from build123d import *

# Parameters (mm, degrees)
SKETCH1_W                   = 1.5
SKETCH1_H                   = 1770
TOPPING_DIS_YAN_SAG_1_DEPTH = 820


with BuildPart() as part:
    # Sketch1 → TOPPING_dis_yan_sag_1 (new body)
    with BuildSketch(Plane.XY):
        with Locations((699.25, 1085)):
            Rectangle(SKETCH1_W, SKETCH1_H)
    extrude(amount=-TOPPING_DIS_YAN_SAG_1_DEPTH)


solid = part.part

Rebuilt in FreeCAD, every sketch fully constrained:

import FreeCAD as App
import Part
import Sketcher
from FreeCAD import Vector
Q = App.Units.Quantity


def add_polygon(sketch, points):
    """Adds a closed chain of lines whose ends are joined by coincident constraints."""
    first, n = sketch.GeometryCount, len(points)
    for a, b in zip(points, points[1:] + points[:1]):
        sketch.addGeometry(Part.LineSegment(App.Vector(*a, 0), App.Vector(*b, 0)), False)
    for i in range(n):
        sketch.addConstraint(Sketcher.Constraint("Coincident", first + i, 2, first + (i + 1) % n, 1))

doc = App.newDocument("Part")
body = doc.addObject("PartDesign::Body", "Body")

# Sketch on XY plane
sketch1 = body.newObject("Sketcher::SketchObject", "Sketch")
sketch1.AttachmentSupport = (doc.getObject("XY_Plane"), [""])
sketch1.MapMode = "FlatFace"
add_polygon(sketch1, [(698.5, 1970), (698.5, 200), (700, 200), (700, 1970)])  # lines 0-3
sketch1.addConstraint([
    Sketcher.Constraint("Vertical", 0),
    Sketcher.Constraint("Horizontal", 1),
    Sketcher.Constraint("Vertical", 2),
    Sketcher.Constraint("Horizontal", 3),
    Sketcher.Constraint("DistanceY", 0, 2, 0, 1, Q("1770 mm")),
    Sketcher.Constraint("DistanceX", 1, 1, 1, 2, Q("1.5 mm")),
    Sketcher.Constraint("DistanceY", -1, 1, 0, 2, Q("200 mm")),
    Sketcher.Constraint("DistanceX", -1, 1, 1, 2, Q("700 mm")),
])
pad1 = body.newObject("PartDesign::Pad", "Pad")
pad1.Profile = sketch1
pad1.Length = 820
pad1.Reversed = True

doc.recompute()
